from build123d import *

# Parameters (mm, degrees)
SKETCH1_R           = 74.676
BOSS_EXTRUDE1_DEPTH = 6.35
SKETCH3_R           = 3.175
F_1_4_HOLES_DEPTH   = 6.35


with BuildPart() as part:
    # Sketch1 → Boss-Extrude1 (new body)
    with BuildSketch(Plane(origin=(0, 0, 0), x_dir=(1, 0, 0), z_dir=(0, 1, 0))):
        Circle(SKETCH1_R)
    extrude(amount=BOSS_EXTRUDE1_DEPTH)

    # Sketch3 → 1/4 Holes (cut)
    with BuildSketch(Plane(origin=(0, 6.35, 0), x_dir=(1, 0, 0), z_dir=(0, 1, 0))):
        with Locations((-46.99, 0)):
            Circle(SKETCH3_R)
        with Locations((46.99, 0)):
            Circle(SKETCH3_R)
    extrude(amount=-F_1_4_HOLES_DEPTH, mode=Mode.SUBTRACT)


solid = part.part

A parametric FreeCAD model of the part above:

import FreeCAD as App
import Part
import Sketcher

V = App.Vector
Q = App.Units.Quantity

doc = App.newDocument("Part")
body = doc.addObject("PartDesign::Body", "Body")

sketch1 = body.newObject("Sketcher::SketchObject", "Sketch")
sketch1.AttachmentSupport = (doc.getObject("XZ_Plane"), [""])
sketch1.MapMode = "FlatFace"
sketch1.addGeometry(Part.Circle(V(0, 0, 0), V(0, 0, 1), 75), False)
sketch1.addConstraint(Sketcher.Constraint("Coincident", 0, 3, -1, 1))
sketch1.addConstraint(Sketcher.Constraint("Diameter", 0, Q("5.88 in")))
pad1 = body.newObject("PartDesign::Pad", "Pad")
pad1.Profile = sketch1
pad1.Length = Q("0.25 in")
pad1.Reversed = True

sketch2 = body.newObject("Sketcher::SketchObject", "Sketch001")
sketch2.AttachmentSupport = (doc.getObject("XZ_Plane"), [""])
sketch2.MapMode = "FlatFace"
sketch2.AttachmentOffset = App.Placement(V(0, 0, -0.25 * 25.4), App.Rotation())
sketch2.addGeometry(Part.Circle(V(-47, 0, 0), V(0, 0, 1), 3.2), False)
sketch2.addGeometry(Part.Circle(V(47, 0, 0), V(0, 0, 1), 3.2), False)
sketch2.addConstraint(Sketcher.Constraint("Equal", 0, 1))
sketch2.addConstraint(Sketcher.Constraint("Symmetric", 0, 3, 1, 3, -1, 1))
sketch2.addConstraint(Sketcher.Constraint("PointOnObject", 0, 3, -1))
sketch2.addConstraint(Sketcher.Constraint("Diameter", 0, Q("0.25 in")))
sketch2.addConstraint(Sketcher.Constraint("DistanceX", 0, 3, 1, 3, Q("3.7 in")))
pocket1 = body.newObject("PartDesign::Pocket", "Pocket")
pocket1.Profile = sketch2
pocket1.Length = Q("0.25 in")
pocket1.Reversed = True

doc.recompute()
